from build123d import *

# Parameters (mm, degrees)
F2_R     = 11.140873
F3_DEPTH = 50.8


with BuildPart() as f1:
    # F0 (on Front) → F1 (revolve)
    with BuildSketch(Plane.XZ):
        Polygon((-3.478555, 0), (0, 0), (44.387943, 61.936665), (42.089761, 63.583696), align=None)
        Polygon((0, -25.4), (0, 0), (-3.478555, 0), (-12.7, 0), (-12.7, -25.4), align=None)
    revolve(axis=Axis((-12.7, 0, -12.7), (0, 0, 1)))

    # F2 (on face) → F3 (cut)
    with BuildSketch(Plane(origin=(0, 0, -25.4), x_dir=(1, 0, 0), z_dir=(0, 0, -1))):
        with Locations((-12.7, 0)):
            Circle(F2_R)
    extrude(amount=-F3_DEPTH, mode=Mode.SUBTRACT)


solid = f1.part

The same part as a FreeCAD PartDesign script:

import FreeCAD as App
import Part
import Sketcher

V = App.Vector
Q = App.Units.Quantity

doc = App.newDocument("Part")
body = doc.addObject("PartDesign::Body", "Body")

# Sketch on XZ plane
sketch1 = body.newObject("Sketcher::SketchObject", "Sketch")
sketch1.AttachmentSupport = (doc.getObject("XZ_Plane"), [""])
sketch1.MapMode = "FlatFace"
sketch1.addGeometry([
    Part.LineSegment(V(0, 0, 0), V(44.387943, 61.936665, 0)),  # 0
    Part.LineSegment(V(44.387943, 61.936665, 0), V(42.089761, 63.583696, 0)),  # 1
    Part.LineSegment(V(42.089761, 63.583696, 0), V(-3.478555, 0, 0)),  # 2
    Part.LineSegment(V(-3.478555, 0, 0), V(-12.7, 0, 0)),  # 3
    Part.LineSegment(V(-12.7, 0, 0), V(-12.7, -25.4, 0)),  # 4
    Part.LineSegment(V(-12.7, -25.4, 0), V(0, -25.4, 0)),  # 5
    Part.LineSegment(V(0, -25.4, 0), V(0, 0, 0)),  # 6
], False)
sketch1.addGeometry(Part.LineSegment(V(-12.7, -25.4, 0), V(-12.7, 63.583696, 0)), True)  # axis
sketch1.addConstraint([
    Sketcher.Constraint("Coincident", 0, 2, 1, 1),
    Sketcher.Constraint("Coincident", 1, 2, 2, 1),
    Sketcher.Constraint("Coincident", 2, 2, 3, 1),
    Sketcher.Constraint("Coincident", 3, 2, 4, 1),
    Sketcher.Constraint("Coincident", 4, 2, 5, 1),
    Sketcher.Constraint("Coincident", 5, 2, 6, 1),
    Sketcher.Constraint("Coincident", 6, 2, 0, 1),
    Sketcher.Constraint("Horizontal", 3),
    Sketcher.Constraint("Vertical", 4),
    Sketcher.Constraint("Horizontal", 5),
    Sketcher.Constraint("Vertical", 6),
    Sketcher.Constraint("Vertical", 7),
    Sketcher.Constraint("Coincident", 6, 2, -1, 1),
    Sketcher.Constraint("Coincident", 7, 1, 4, 2),
    Sketcher.Constraint("PointOnObject", 2, 2, -1),
    Sketcher.Constraint("DistanceY", 4, 2, 4, 1, Q("1 in")),
    Sketcher.Constraint("Distance", 0, Q("3 in")),
    Sketcher.Constraint("DistanceX", 5, 1, 5, 2, Q("0.5 in")),
    Sketcher.Constraint("Distance", 1, Q("2.827428 mm")),
    Sketcher.Constraint("DistanceX", 3, 2, 3, 1, Q("9.221445 mm")),
    Sketcher.Constraint("DistanceY", 7, 1, 7, 2, Q("88.983696 mm")),
    Sketcher.Constraint("DistanceX", -1, 1, 1, 2, Q("42.089761 mm")),
    Sketcher.Constraint("DistanceX", 1, 2, 0, 2, Q("2.298182 mm")),
])
revolution = body.newObject("PartDesign::Revolution", "Revolution")
revolution.Profile = sketch1
revolution.ReferenceAxis = (sketch1, ["Axis0"])
revolution.Angle = 360

# Sketch on XY plane
sketch2 = body.newObject("Sketcher::SketchObject", "Sketch001")
sketch2.AttachmentSupport = (doc.getObject("XY_Plane"), [""])
sketch2.MapMode = "FlatFace"
sketch2.AttachmentOffset = App.Placement(V(0, 0, -1 * 25.4), App.Rotation())
sketch2.addGeometry(Part.Circle(V(-13, 0, 0), V(0, 0, 1), 11), False)
sketch2.addConstraint([
    Sketcher.Constraint("PointOnObject", 0, 3, -1),
    Sketcher.Constraint("DistanceX", 0, 3, -1, 1, Q("0.5 in")),
    Sketcher.Constraint("Diameter", 0, Q("22.281746 mm")),
])
pocket1 = body.newObject("PartDesign::Pocket", "Pocket")
pocket1.Profile = sketch2
pocket1.Length = Q("2 in")
pocket1.Reversed = True

doc.recompute()
